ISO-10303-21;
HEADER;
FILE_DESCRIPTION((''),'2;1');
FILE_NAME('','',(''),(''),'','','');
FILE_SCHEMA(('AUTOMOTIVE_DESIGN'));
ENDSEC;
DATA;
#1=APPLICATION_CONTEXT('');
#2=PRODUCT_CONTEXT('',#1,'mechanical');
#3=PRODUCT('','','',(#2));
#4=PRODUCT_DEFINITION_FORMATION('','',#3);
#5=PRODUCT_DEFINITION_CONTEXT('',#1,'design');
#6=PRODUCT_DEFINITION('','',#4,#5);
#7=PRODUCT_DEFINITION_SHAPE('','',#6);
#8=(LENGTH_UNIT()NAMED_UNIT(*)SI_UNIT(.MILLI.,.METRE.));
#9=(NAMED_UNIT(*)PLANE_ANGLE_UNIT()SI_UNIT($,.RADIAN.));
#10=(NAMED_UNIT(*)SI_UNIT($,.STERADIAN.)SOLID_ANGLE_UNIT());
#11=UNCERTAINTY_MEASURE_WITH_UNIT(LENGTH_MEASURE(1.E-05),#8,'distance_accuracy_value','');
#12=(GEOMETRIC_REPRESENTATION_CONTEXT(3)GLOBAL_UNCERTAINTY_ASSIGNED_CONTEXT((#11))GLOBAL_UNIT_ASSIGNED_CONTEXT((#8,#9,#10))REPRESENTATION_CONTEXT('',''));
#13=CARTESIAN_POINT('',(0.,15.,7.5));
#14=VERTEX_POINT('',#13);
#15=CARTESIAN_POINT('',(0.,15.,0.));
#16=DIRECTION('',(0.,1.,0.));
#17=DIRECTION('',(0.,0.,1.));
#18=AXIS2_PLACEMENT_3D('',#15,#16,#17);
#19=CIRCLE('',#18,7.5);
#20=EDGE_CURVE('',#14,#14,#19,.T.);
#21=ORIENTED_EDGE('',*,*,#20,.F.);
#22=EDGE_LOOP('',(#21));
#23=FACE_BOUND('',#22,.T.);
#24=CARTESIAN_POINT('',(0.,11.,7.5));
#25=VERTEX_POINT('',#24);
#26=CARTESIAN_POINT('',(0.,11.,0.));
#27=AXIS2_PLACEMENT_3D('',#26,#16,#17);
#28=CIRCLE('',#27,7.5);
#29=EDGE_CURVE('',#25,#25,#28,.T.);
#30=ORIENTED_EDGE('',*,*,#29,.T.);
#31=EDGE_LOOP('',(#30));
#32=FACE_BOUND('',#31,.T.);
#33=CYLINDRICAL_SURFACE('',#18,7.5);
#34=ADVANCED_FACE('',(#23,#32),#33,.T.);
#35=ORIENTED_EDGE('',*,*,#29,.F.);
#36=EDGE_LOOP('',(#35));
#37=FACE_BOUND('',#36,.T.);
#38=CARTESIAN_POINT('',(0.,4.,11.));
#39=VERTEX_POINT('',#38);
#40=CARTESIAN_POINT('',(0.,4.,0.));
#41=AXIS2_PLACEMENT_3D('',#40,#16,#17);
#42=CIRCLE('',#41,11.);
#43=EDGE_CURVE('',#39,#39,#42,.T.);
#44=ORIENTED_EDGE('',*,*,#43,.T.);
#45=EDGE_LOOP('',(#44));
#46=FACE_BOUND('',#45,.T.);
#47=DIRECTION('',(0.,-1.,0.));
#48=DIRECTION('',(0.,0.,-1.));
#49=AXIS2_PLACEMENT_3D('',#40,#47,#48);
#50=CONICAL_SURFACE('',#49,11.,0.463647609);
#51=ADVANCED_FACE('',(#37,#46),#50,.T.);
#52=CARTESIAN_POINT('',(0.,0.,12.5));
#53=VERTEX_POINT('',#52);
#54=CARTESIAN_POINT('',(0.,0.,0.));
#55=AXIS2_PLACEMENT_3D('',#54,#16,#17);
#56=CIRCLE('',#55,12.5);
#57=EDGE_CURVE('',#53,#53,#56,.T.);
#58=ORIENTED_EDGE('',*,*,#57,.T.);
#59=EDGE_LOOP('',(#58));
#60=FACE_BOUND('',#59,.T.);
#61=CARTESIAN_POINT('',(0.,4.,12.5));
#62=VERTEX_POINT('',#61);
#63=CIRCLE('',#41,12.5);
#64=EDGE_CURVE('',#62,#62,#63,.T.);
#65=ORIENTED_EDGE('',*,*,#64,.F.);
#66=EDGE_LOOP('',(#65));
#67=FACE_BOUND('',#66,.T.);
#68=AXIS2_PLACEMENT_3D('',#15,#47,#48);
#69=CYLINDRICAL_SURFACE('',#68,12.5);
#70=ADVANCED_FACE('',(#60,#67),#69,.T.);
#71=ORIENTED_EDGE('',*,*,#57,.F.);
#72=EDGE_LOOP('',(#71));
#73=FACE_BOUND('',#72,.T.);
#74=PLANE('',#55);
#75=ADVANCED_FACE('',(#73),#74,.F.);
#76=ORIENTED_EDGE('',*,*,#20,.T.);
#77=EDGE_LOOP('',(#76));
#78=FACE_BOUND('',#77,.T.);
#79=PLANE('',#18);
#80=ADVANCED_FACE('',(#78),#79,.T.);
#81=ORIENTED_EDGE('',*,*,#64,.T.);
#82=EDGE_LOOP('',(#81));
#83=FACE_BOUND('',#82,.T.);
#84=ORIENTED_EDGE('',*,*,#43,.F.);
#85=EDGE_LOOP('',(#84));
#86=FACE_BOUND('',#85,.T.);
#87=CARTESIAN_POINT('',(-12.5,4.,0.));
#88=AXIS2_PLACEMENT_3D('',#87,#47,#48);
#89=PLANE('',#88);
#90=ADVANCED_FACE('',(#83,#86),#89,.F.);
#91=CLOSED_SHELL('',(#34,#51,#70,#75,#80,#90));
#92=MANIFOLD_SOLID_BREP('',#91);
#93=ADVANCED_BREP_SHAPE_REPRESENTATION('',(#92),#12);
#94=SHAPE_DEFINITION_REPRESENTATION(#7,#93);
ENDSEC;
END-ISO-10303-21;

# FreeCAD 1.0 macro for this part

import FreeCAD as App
import Part
import Sketcher
Q = App.Units.Quantity

doc = App.newDocument("Part")
body = doc.addObject("PartDesign::Body", "Body")

# Sketch on XZ plane
sketch1 = body.newObject("Sketcher::SketchObject", "Sketch")
sketch1.AttachmentSupport = (doc.getObject("XZ_Plane"), [""])
sketch1.MapMode = "FlatFace"
sketch1.addGeometry(Part.Circle(App.Vector(0, 0, 0), App.Vector(0, 0, 1), 12.5), False)
sketch1.addConstraint(Sketcher.Constraint("Coincident", 0, 3, -1, 1))
sketch1.addConstraint(Sketcher.Constraint("Diameter", 0, Q("25 mm")))
pad1 = body.newObject("PartDesign::Pad", "Pad")
pad1.Profile = sketch1
pad1.Length = 15
pad1.Reversed = True

# Sketch on XY plane
sketch2 = body.newObject("Sketcher::SketchObject", "Sketch001")
sketch2.AttachmentSupport = (doc.getObject("XY_Plane"), [""])
sketch2.MapMode = "FlatFace"
sketch2.addGeometry(Part.LineSegment(App.Vector(-12.5, 4, 0), App.Vector(-11, 4, 0)), False)
sketch2.addGeometry(Part.LineSegment(App.Vector(-11, 4, 0), App.Vector(-7.5, 11, 0)), False)
sketch2.addGeometry(Part.LineSegment(App.Vector(-7.5, 11, 0), App.Vector(-7.5, 15, 0)), False)
sketch2.addGeometry(Part.LineSegment(App.Vector(-7.5, 15, 0), App.Vector(-12.5, 15, 0)), False)
sketch2.addGeometry(Part.LineSegment(App.Vector(-12.5, 15, 0), App.Vector(-12.5, 4, 0)), False)
sketch2.addConstraint(Sketcher.Constraint("Coincident", 0, 2, 1, 1))
sketch2.addConstraint(Sketcher.Constraint("Coincident", 1, 2, 2, 1))
sketch2.addConstraint(Sketcher.Constraint("Coincident", 2, 2, 3, 1))
sketch2.addConstraint(Sketcher.Constraint("Coincident", 3, 2, 4, 1))
sketch2.addConstraint(Sketcher.Constraint("Coincident", 4, 2, 0, 1))
sketch2.addConstraint(Sketcher.Constraint("Horizontal", 0))
sketch2.addConstraint(Sketcher.Constraint("Vertical", 2))
sketch2.addConstraint(Sketcher.Constraint("Horizontal", 3))
sketch2.addConstraint(Sketcher.Constraint("Vertical", 4))
sketch2.addConstraint(Sketcher.Constraint("DistanceX", 3, 2, 3, 1, Q("5 mm")))
sketch2.addConstraint(Sketcher.Constraint("DistanceY", 2, 1, 2, 2, Q("4 mm")))
sketch2.addConstraint(Sketcher.Constraint("DistanceY", 4, 2, 4, 1, Q("11 mm")))
sketch2.addConstraint(Sketcher.Constraint("DistanceX", 0, 1, 0, 2, Q("1.5 mm")))
sketch2.addConstraint(Sketcher.Constraint("DistanceX", 0, 2, -1, 1, Q("11 mm")))
sketch2.addConstraint(Sketcher.Constraint("DistanceY", -1, 1, 0, 2, Q("4 mm")))
groove = body.newObject("PartDesign::Groove", "Groove")
groove.Profile = sketch2
groove.ReferenceAxis = (sketch2, ["V_Axis"])
groove.Angle = 360

doc.recompute()
